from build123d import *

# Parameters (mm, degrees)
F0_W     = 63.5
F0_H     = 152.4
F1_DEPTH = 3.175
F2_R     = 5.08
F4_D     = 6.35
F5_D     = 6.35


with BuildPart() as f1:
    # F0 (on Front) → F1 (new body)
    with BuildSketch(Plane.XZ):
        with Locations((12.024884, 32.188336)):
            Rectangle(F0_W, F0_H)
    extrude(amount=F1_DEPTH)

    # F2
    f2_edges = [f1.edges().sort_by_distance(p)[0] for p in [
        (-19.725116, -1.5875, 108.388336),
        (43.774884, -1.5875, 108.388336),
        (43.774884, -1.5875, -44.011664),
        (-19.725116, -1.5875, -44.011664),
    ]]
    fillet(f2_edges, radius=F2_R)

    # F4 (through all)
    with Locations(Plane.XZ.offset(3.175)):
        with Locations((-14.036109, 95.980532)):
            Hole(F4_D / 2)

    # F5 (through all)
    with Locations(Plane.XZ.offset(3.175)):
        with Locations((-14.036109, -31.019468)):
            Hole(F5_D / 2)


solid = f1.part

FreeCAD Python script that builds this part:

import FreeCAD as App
import Part
import Sketcher
from FreeCAD import Vector
Q = App.Units.Quantity


def edges_at(feature, points):
    """Names of the edges that pass closest to the given points."""
    edges = feature.Shape.Edges
    near = lambda p: min(range(len(edges)), key=lambda i: edges[i].distToShape(Part.Vertex(*p))[0])
    return sorted({f"Edge{near(p) + 1}" for p in points})


def add_polygon(sketch, points):
    """Adds a closed chain of lines whose ends are joined by coincident constraints."""
    first, n = sketch.GeometryCount, len(points)
    for a, b in zip(points, points[1:] + points[:1]):
        sketch.addGeometry(Part.LineSegment(App.Vector(*a, 0), App.Vector(*b, 0)), False)
    for i in range(n):
        sketch.addConstraint(Sketcher.Constraint("Coincident", first + i, 2, first + (i + 1) % n, 1))

doc = App.newDocument("Part")
body = doc.addObject("PartDesign::Body", "Body")

# Sketch on XZ plane
sketch1 = doc.addObject("Sketcher::SketchObject", "Sketch")
body.addObject(sketch1)
sketch1.AttachmentSupport = (doc.XZ_Plane, [""])
sketch1.MapMode = "FlatFace"
add_polygon(sketch1, [(-20, 108), (-20, -44), (44, -44), (44, 108)])  # lines 0-3
sketch1.addConstraint(Sketcher.Constraint("Vertical", 0))
sketch1.addConstraint(Sketcher.Constraint("Horizontal", 1))
sketch1.addConstraint(Sketcher.Constraint("Vertical", 2))
sketch1.addConstraint(Sketcher.Constraint("Horizontal", 3))
sketch1.addConstraint(Sketcher.Constraint("DistanceY", 0, 2, 0, 1, Q("6 in")))
sketch1.addConstraint(Sketcher.Constraint("DistanceX", 1, 1, 1, 2, Q("2.5 in")))
sketch1.addConstraint(Sketcher.Constraint("DistanceX", 0, 2, -1, 1, 19.725116))
sketch1.addConstraint(Sketcher.Constraint("DistanceY", 0, 2, -1, 1, 44.011664))
pad1 = doc.addObject("PartDesign::Pad", "Pad")
body.addObject(pad1)
pad1.Profile = sketch1
pad1.Length = Q("0.125 in")
doc.recompute()

fillet = doc.addObject("PartDesign::Fillet", "Fillet")
body.addObject(fillet)
fillet.Base = (pad1, edges_at(pad1, [
    (-19.725, -1.587, 108.388),
    (43.775, -1.587, 108.388),
    (43.775, -1.587, -44.012),
    (-19.725, -1.587, -44.012),
]))
fillet.Radius = Q("0.2 in")

# Sketch on XZ plane
sketch2 = doc.addObject("Sketcher::SketchObject", "Sketch001")
body.addObject(sketch2)
sketch2.AttachmentSupport = (doc.XZ_Plane, [""])
sketch2.MapMode = "FlatFace"
sketch2.AttachmentOffset = App.Placement(Vector(0, 0, 0.125 * 25.4), App.Rotation())
sketch2.addGeometry(Part.Circle(Vector(-14, 96, 0), Vector(0, 0, 1), 3.2), False)
sketch2.addConstraint(Sketcher.Constraint("Diameter", 0, Q("0.25 in")))
sketch2.addConstraint(Sketcher.Constraint("DistanceX", 0, 3, -1, 1, 14.036109))
sketch2.addConstraint(Sketcher.Constraint("DistanceY", -1, 1, 0, 3, 95.980532))
doc.recompute()
hole = doc.addObject("PartDesign::Hole", "Hole")
body.addObject(hole)
hole.Profile = sketch2
hole.ThreadType = "None"
hole.Diameter = Q("0.25 in")
hole.DepthType = "ThroughAll"

# Sketch on XZ plane
sketch3 = doc.addObject("Sketcher::SketchObject", "Sketch002")
body.addObject(sketch3)
sketch3.AttachmentSupport = (doc.XZ_Plane, [""])
sketch3.MapMode = "FlatFace"
sketch3.AttachmentOffset = App.Placement(Vector(0, 0, 0.125 * 25.4), App.Rotation())
sketch3.addGeometry(Part.Circle(Vector(-14, -31, 0), Vector(0, 0, 1), 3.2), False)
sketch3.addConstraint(Sketcher.Constraint("Diameter", 0, Q("0.25 in")))
sketch3.addConstraint(Sketcher.Constraint("DistanceX", 0, 3, -1, 1, 14.036109))
sketch3.addConstraint(Sketcher.Constraint("DistanceY", 0, 3, -1, 1, 31.019468))
doc.recompute()
hole2 = doc.addObject("PartDesign::Hole", "Hole001")
body.addObject(hole2)
hole2.Profile = sketch3
hole2.ThreadType = "None"
hole2.Diameter = Q("0.25 in")
hole2.DepthType = "ThroughAll"

doc.recompute()
